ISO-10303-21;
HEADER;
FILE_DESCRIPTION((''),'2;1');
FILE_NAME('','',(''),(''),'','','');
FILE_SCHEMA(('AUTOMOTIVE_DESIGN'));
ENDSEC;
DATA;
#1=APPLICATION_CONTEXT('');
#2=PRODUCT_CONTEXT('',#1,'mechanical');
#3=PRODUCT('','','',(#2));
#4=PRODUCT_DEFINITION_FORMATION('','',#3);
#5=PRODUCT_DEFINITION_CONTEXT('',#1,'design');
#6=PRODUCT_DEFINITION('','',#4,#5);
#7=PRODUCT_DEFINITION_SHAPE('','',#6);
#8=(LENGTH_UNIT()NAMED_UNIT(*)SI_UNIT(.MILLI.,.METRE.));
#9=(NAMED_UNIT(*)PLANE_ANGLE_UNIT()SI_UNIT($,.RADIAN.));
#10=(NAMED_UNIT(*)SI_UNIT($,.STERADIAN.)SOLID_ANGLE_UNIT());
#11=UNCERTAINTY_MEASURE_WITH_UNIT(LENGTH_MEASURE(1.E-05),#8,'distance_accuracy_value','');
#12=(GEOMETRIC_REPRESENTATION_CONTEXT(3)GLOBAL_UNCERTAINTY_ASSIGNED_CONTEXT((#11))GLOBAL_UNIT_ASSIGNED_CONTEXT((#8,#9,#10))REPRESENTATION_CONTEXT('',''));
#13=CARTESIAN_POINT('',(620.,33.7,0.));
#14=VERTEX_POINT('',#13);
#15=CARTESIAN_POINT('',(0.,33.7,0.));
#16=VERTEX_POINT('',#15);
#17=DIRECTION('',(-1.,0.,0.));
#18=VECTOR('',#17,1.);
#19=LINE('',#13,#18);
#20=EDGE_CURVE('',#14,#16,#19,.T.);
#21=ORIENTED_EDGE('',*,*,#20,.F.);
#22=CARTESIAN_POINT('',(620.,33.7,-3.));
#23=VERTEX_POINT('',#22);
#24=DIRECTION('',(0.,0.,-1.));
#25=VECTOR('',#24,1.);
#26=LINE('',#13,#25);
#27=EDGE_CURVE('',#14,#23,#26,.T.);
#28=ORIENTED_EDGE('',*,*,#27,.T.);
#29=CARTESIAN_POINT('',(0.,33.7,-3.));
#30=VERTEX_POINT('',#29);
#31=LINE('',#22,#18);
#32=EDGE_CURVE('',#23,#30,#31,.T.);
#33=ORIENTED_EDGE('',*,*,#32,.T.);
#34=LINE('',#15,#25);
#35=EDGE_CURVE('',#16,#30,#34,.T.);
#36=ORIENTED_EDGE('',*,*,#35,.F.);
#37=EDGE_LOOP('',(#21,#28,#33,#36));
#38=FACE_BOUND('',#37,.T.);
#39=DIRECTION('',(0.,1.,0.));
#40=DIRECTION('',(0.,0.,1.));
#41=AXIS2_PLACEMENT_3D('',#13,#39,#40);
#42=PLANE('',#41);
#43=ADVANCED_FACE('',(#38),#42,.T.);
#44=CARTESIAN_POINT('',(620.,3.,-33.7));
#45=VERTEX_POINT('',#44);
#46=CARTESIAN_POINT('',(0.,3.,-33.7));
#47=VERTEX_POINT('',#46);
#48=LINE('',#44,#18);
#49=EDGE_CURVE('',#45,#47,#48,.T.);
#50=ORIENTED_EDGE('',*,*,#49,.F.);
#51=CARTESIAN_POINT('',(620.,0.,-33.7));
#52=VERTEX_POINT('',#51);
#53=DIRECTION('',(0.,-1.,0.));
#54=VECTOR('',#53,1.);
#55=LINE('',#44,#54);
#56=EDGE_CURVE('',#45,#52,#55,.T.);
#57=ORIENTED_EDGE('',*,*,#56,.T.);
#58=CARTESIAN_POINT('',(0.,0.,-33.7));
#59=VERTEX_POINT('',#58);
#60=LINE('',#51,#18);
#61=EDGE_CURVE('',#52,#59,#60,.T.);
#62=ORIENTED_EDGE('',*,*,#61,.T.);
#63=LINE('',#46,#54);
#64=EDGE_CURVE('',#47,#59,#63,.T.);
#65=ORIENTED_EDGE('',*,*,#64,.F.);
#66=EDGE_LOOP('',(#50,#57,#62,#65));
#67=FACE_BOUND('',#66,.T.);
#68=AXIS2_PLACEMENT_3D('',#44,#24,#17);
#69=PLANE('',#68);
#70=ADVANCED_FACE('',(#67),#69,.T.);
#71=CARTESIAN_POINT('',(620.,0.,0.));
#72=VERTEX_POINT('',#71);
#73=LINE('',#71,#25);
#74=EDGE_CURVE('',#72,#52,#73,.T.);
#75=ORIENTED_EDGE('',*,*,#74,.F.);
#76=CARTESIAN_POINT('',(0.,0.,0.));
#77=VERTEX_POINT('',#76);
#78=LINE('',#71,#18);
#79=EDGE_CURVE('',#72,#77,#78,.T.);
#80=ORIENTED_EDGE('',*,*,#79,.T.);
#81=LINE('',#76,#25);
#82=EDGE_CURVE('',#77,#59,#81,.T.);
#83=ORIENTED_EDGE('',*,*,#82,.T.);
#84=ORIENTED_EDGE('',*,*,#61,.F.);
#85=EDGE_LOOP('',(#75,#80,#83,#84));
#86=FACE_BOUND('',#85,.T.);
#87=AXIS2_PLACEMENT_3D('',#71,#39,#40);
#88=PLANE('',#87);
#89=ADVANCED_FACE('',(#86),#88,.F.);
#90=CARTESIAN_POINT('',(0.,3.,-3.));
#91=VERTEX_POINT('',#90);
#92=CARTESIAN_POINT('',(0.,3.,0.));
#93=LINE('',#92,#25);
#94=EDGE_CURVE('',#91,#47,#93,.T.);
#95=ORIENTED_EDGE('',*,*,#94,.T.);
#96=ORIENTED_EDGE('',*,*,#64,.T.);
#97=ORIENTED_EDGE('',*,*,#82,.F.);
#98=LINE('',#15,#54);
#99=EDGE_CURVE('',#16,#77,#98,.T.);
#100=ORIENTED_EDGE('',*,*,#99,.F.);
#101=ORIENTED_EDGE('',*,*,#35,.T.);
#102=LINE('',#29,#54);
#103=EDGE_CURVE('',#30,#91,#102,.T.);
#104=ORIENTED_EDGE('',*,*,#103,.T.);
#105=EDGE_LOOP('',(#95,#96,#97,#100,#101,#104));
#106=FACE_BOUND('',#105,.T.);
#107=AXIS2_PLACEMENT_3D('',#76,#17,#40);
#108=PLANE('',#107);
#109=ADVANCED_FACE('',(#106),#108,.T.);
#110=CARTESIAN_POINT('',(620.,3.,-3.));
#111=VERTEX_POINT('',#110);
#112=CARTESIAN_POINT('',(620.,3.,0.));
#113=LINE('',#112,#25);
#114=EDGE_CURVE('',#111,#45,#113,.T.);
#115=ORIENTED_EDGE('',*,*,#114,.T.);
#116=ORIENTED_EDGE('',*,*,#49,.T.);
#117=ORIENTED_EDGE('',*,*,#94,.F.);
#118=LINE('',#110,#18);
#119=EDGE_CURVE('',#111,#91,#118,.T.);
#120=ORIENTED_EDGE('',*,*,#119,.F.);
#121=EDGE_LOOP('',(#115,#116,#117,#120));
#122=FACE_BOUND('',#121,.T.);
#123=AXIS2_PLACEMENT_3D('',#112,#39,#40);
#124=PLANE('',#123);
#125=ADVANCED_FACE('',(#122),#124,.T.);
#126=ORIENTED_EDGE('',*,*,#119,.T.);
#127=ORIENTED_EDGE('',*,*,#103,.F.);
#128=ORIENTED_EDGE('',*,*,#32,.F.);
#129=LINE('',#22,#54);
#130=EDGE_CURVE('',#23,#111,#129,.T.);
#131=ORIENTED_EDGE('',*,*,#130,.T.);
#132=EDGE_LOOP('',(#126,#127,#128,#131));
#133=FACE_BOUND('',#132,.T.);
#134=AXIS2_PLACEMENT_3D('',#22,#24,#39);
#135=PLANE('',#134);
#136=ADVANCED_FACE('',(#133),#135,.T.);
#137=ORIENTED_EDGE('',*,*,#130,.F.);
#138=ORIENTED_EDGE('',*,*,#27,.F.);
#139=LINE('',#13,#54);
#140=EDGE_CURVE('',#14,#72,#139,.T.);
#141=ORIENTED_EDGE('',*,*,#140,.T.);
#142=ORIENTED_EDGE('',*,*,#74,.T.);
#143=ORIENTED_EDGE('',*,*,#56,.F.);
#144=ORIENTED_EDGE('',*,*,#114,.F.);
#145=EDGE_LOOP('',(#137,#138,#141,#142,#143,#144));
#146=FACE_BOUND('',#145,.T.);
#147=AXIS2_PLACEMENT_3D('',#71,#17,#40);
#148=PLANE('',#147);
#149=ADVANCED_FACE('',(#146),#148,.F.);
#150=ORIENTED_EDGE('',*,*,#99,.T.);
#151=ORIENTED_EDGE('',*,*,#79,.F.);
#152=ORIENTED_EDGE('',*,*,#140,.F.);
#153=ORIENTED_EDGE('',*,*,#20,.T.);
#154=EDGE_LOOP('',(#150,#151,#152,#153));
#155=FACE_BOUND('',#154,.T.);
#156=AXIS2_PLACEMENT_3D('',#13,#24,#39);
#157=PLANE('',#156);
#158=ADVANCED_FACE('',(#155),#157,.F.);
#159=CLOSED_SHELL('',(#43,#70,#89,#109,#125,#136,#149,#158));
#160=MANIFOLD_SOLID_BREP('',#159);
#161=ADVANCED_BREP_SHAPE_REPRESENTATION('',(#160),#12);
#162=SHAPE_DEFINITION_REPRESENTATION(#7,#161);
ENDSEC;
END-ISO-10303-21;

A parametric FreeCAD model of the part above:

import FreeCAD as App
import Part
import Sketcher
from FreeCAD import Vector


def add_polygon(sketch, points):
    """Adds a closed chain of lines whose ends are joined by coincident constraints."""
    first, n = sketch.GeometryCount, len(points)
    for a, b in zip(points, points[1:] + points[:1]):
        sketch.addGeometry(Part.LineSegment(App.Vector(*a, 0), App.Vector(*b, 0)), False)
    for i in range(n):
        sketch.addConstraint(Sketcher.Constraint("Coincident", first + i, 2, first + (i + 1) % n, 1))

doc = App.newDocument("Part")
params = doc.addObject("Spreadsheet::Sheet", "Params")
for row, (alias, value) in enumerate([
    ("sketch1_width", "3 mm"),
    ("sketch1_width2", "33.7 mm"),
    ("pad1_length", "620 mm"),
], start=1):
    params.set(f"A{row}", alias)
    params.set(f"B{row}", "=" + value)
    params.setAlias(f"B{row}", alias)

body = doc.addObject("PartDesign::Body", "Body")

sketch1 = doc.addObject("Sketcher::SketchObject", "Sketch")
body.addObject(sketch1)
sketch1.AttachmentSupport = (doc.YZ_Plane, [""])
sketch1.MapMode = "FlatFace"
add_polygon(sketch1, [(33.7, 0), (0, 0), (0, -33.7), (3, -33.7), (3, -3), (33.7, -3)])
sketch1.addConstraint([
    Sketcher.Constraint("Horizontal", 0),
    Sketcher.Constraint("Vertical", 1),
    Sketcher.Constraint("Horizontal", 2),
    Sketcher.Constraint("Vertical", 3),
    Sketcher.Constraint("Horizontal", 4),
    Sketcher.Constraint("Vertical", 5),
    Sketcher.Constraint("Coincident", 0, 2, -1, 1),
    Sketcher.Constraint("Equal", 0, 1),
    Sketcher.Constraint("Equal", 4, 3),
    Sketcher.Constraint("DistanceX", 2, 1, 2, 2, 3.0),
    Sketcher.Constraint("DistanceX", 0, 2, 0, 1, 33.7),
])
sketch1.setExpression("Constraints[15]", "Params.sketch1_width")
sketch1.setExpression("Constraints[16]", "Params.sketch1_width2")
pad1 = doc.addObject("PartDesign::Pad", "Pad")
body.addObject(pad1)
pad1.Profile = sketch1
pad1.setExpression("Length", "Params.pad1_length")

doc.recompute()
